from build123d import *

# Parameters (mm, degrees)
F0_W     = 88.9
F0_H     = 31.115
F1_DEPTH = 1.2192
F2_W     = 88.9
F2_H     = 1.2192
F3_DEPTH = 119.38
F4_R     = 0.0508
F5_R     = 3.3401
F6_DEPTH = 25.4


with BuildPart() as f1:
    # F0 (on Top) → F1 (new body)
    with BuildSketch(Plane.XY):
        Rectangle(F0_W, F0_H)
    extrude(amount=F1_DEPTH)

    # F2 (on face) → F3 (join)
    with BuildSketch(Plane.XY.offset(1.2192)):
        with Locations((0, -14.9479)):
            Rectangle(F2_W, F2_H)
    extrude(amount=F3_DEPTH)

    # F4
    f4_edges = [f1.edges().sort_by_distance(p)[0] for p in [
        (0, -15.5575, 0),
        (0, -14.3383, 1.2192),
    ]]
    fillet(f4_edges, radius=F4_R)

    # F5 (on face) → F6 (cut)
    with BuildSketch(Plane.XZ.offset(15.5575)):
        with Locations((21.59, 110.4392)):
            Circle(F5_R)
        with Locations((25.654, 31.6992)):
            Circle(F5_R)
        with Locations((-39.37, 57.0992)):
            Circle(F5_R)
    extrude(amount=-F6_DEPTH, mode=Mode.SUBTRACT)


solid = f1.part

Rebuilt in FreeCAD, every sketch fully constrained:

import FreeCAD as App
import Part
import Sketcher
from FreeCAD import Vector
Q = App.Units.Quantity


def edges_at(feature, points):
    """Names of the edges that pass closest to the given points."""
    edges = feature.Shape.Edges
    near = lambda p: min(range(len(edges)), key=lambda i: edges[i].distToShape(Part.Vertex(*p))[0])
    return sorted({f"Edge{near(p) + 1}" for p in points})


def add_polygon(sketch, points):
    """Adds a closed chain of lines whose ends are joined by coincident constraints."""
    first, n = sketch.GeometryCount, len(points)
    for a, b in zip(points, points[1:] + points[:1]):
        sketch.addGeometry(Part.LineSegment(App.Vector(*a, 0), App.Vector(*b, 0)), False)
    for i in range(n):
        sketch.addConstraint(Sketcher.Constraint("Coincident", first + i, 2, first + (i + 1) % n, 1))

doc = App.newDocument("Part")
body = doc.addObject("PartDesign::Body", "Body")

# Sketch on XY plane
sketch1 = doc.addObject("Sketcher::SketchObject", "Sketch")
body.addObject(sketch1)
sketch1.AttachmentSupport = (doc.XY_Plane, [""])
sketch1.MapMode = "FlatFace"
add_polygon(sketch1, [(-44, 16), (-44, -16), (44, -16), (44, 16)])  # lines 0-3
sketch1.addConstraint(Sketcher.Constraint("Vertical", 0))
sketch1.addConstraint(Sketcher.Constraint("Horizontal", 1))
sketch1.addConstraint(Sketcher.Constraint("Vertical", 2))
sketch1.addConstraint(Sketcher.Constraint("Horizontal", 3))
sketch1.addConstraint(Sketcher.Constraint("Symmetric", 0, 2, 2, 2, -1, 1))
sketch1.addConstraint(Sketcher.Constraint("DistanceX", 1, 1, 1, 2, Q("3.5 in")))
sketch1.addConstraint(Sketcher.Constraint("DistanceY", 0, 2, 0, 1, Q("1.225 in")))
pad1 = doc.addObject("PartDesign::Pad", "Pad")
body.addObject(pad1)
pad1.Profile = sketch1
pad1.Length = Q("0.048 in")

# Sketch on XY plane
sketch2 = doc.addObject("Sketcher::SketchObject", "Sketch001")
body.addObject(sketch2)
sketch2.AttachmentSupport = (doc.XY_Plane, [""])
sketch2.MapMode = "FlatFace"
sketch2.AttachmentOffset = App.Placement(Vector(0, 0, 0.048 * 25.4), App.Rotation())
add_polygon(sketch2, [(-44.5, -14.3), (-44.5, -15.6), (44.5, -15.6), (44.5, -14.3)])  # lines 0-3
sketch2.addConstraint(Sketcher.Constraint("Vertical", 0))
sketch2.addConstraint(Sketcher.Constraint("Horizontal", 1))
sketch2.addConstraint(Sketcher.Constraint("Vertical", 2))
sketch2.addConstraint(Sketcher.Constraint("Horizontal", 3))
sketch2.addConstraint(Sketcher.Constraint("DistanceX", 1, 1, 1, 2, Q("3.5 in")))
sketch2.addConstraint(Sketcher.Constraint("DistanceY", 0, 2, 0, 1, Q("0.048 in")))
sketch2.addConstraint(Sketcher.Constraint("DistanceX", 0, 2, -1, 1, Q("1.75 in")))
sketch2.addConstraint(Sketcher.Constraint("DistanceY", 0, 2, -1, 1, Q("0.6125 in")))
pad2 = doc.addObject("PartDesign::Pad", "Pad001")
body.addObject(pad2)
pad2.Profile = sketch2
pad2.Length = Q("4.7 in")
doc.recompute()

fillet = doc.addObject("PartDesign::Fillet", "Fillet")
body.addObject(fillet)
fillet.Base = (pad2, edges_at(pad2, [(0, -15.557, 0), (0, -14.338, 1.219)]))
fillet.Radius = Q("0.002 in")

# Sketch on XZ plane
sketch3 = doc.addObject("Sketcher::SketchObject", "Sketch002")
body.addObject(sketch3)
sketch3.AttachmentSupport = (doc.XZ_Plane, [""])
sketch3.MapMode = "FlatFace"
sketch3.AttachmentOffset = App.Placement(Vector(0, 0, 0.6125 * 25.4), App.Rotation())
sketch3.addGeometry(Part.Circle(Vector(21.6, 110.4, 0), Vector(0, 0, 1), 3.3), False)
sketch3.addGeometry(Part.Circle(Vector(25.7, 31.7, 0), Vector(0, 0, 1), 3.3), False)
sketch3.addGeometry(Part.Circle(Vector(-39.4, 57.1, 0), Vector(0, 0, 1), 3.3), False)
sketch3.addConstraint(Sketcher.Constraint("Equal", 0, 1))
sketch3.addConstraint(Sketcher.Constraint("Equal", 1, 2))
sketch3.addConstraint(Sketcher.Constraint("Diameter", 0, Q("0.263 in")))
sketch3.addConstraint(Sketcher.Constraint("DistanceY", 1, 3, 2, 3, Q("1 in")))
sketch3.addConstraint(Sketcher.Constraint("DistanceY", 1, 3, 0, 3, Q("3.1 in")))
sketch3.addConstraint(Sketcher.Constraint("DistanceX", 2, 3, 0, 3, Q("2.4 in")))
sketch3.addConstraint(Sketcher.Constraint("DistanceX", -1, 1, 0, 3, Q("0.85 in")))
sketch3.addConstraint(Sketcher.Constraint("DistanceX", -1, 1, 1, 3, Q("1.01 in")))
sketch3.addConstraint(Sketcher.Constraint("DistanceY", -1, 1, 0, 3, Q("4.348 in")))
pocket1 = doc.addObject("PartDesign::Pocket", "Pocket")
body.addObject(pocket1)
pocket1.Profile = sketch3
pocket1.Length = Q("1 in")

doc.recompute()
